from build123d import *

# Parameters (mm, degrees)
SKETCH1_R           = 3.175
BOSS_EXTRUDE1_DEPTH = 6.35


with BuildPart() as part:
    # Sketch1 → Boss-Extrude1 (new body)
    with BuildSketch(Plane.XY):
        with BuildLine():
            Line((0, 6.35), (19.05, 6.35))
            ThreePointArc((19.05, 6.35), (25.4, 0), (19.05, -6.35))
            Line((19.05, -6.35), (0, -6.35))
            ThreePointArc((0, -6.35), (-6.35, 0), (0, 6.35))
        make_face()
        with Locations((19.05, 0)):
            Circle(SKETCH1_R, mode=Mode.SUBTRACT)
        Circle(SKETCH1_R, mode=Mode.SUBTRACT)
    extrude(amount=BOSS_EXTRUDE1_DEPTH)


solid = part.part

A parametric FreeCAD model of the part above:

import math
import FreeCAD as App
import Part
import Sketcher
from FreeCAD import Vector
Q = App.Units.Quantity

doc = App.newDocument("Part")
body = doc.addObject("PartDesign::Body", "Body")

# Sketch on XY plane
sketch1 = body.newObject("Sketcher::SketchObject", "Sketch")
sketch1.AttachmentSupport = (doc.getObject("XY_Plane"), [""])
sketch1.MapMode = "FlatFace"
sketch1.addGeometry([
    Part.LineSegment(Vector(19.1, 6.3, 0), Vector(0, 6.3, 0)),  # 0
    Part.ArcOfCircle(Part.Circle(Vector(0, 0, 0), Vector(0, 0, 1), 6.3), math.radians(90), math.radians(270)),  # 1
    Part.LineSegment(Vector(0, -6.3, 0), Vector(19.1, -6.3, 0)),  # 2
    Part.ArcOfCircle(Part.Circle(Vector(19.1, 0, 0), Vector(0, 0, 1), 6.3), math.radians(-90), math.radians(90)),  # 3
    Part.Circle(Vector(19.1, 0, 0), Vector(0, 0, 1), 3.2),  # 4
    Part.Circle(Vector(0, 0, 0), Vector(0, 0, 1), 3.2),  # 5
], False)
sketch1.addConstraint([
    Sketcher.Constraint("Tangent", 0, 2, 1, 1),
    Sketcher.Constraint("Tangent", 1, 2, 2, 1),
    Sketcher.Constraint("Tangent", 2, 2, 3, 1),
    Sketcher.Constraint("Tangent", 3, 2, 0, 1),
    Sketcher.Constraint("Horizontal", 0),
    Sketcher.Constraint("Horizontal", 2),
    Sketcher.Constraint("Coincident", 1, 3, -1, 1),
    Sketcher.Constraint("Coincident", 5, 3, -1, 1),
    Sketcher.Constraint("Coincident", 4, 3, 3, 3),
    Sketcher.Constraint("Equal", 4, 5),
    Sketcher.Constraint("Diameter", 4, Q("0.25 in")),
    Sketcher.Constraint("Radius", 1, Q("0.25 in")),
    Sketcher.Constraint("DistanceX", 0, 2, 0, 1, Q("0.75 in")),
])
pad1 = body.newObject("PartDesign::Pad", "Pad")
pad1.Profile = sketch1
pad1.Length = Q("0.25 in")

doc.recompute()
